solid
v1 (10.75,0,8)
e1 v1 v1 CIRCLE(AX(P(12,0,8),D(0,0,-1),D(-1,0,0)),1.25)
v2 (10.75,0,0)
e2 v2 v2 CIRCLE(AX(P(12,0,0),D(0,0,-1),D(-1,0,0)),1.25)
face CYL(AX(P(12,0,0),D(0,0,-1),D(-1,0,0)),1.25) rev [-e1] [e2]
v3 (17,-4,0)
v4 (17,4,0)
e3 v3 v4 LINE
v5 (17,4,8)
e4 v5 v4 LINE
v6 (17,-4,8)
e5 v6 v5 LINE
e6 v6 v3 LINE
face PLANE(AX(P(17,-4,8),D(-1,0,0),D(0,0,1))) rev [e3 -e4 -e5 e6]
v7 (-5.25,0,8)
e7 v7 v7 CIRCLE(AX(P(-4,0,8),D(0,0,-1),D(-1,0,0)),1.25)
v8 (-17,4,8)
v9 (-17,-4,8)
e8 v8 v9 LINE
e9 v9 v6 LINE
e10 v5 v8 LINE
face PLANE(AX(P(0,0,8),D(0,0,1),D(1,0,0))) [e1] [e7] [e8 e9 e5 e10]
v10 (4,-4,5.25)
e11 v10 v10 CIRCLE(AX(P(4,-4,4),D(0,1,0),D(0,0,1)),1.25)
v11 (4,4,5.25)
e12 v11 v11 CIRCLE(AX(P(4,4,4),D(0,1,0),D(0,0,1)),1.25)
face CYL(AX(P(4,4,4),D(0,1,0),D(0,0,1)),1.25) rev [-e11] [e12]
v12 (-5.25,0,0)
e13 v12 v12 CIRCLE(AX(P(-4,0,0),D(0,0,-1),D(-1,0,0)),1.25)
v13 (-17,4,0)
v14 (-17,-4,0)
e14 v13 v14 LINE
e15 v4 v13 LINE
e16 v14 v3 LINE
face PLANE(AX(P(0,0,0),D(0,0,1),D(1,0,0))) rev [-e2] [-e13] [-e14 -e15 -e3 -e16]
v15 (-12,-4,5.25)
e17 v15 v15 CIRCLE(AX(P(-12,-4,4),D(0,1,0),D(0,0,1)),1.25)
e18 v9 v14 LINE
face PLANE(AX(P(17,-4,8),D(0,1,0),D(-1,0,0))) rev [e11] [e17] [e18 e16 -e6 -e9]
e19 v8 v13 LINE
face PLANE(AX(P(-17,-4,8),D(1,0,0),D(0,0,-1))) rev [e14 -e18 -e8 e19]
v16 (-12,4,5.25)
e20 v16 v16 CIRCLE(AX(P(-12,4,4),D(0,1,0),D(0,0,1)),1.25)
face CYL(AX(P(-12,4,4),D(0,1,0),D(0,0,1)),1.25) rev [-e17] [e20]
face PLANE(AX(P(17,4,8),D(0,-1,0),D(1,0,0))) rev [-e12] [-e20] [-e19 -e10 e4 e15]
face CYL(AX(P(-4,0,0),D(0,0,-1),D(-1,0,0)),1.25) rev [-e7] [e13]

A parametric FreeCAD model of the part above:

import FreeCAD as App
import Part
import Sketcher

V = App.Vector

doc = App.newDocument("Part")
body = doc.addObject("PartDesign::Body", "Body")

sketch1 = body.newObject("Sketcher::SketchObject", "Sketch")
sketch1.AttachmentSupport = (doc.getObject("XY_Plane"), [""])
sketch1.MapMode = "FlatFace"
sketch1.addGeometry(Part.LineSegment(V(-17, 4, 0), V(-17, -4, 0)), False)
sketch1.addGeometry(Part.LineSegment(V(-17, -4, 0), V(17, -4, 0)), False)
sketch1.addGeometry(Part.LineSegment(V(17, -4, 0), V(17, 4, 0)), False)
sketch1.addGeometry(Part.LineSegment(V(17, 4, 0), V(-17, 4, 0)), False)
sketch1.addConstraint(Sketcher.Constraint("Coincident", 0, 2, 1, 1))
sketch1.addConstraint(Sketcher.Constraint("Coincident", 1, 2, 2, 1))
sketch1.addConstraint(Sketcher.Constraint("Coincident", 2, 2, 3, 1))
sketch1.addConstraint(Sketcher.Constraint("Coincident", 3, 2, 0, 1))
sketch1.addConstraint(Sketcher.Constraint("Vertical", 0))
sketch1.addConstraint(Sketcher.Constraint("Horizontal", 1))
sketch1.addConstraint(Sketcher.Constraint("Vertical", 2))
sketch1.addConstraint(Sketcher.Constraint("Horizontal", 3))
sketch1.addConstraint(Sketcher.Constraint("Symmetric", 0, 2, 2, 2, -1, 1))
sketch1.addConstraint(Sketcher.Constraint("DistanceX", 1, 1, 1, 2, 34.0))
sketch1.addConstraint(Sketcher.Constraint("DistanceY", 0, 2, 0, 1, 8.0))
pad1 = body.newObject("PartDesign::Pad", "Pad")
pad1.Profile = sketch1
pad1.Length = 8

sketch2 = body.newObject("Sketcher::SketchObject", "Sketch001")
sketch2.AttachmentSupport = (doc.getObject("XZ_Plane"), [""])
sketch2.MapMode = "FlatFace"
sketch2.AttachmentOffset = App.Placement(V(0, 0, -4), App.Rotation())
sketch2.addGeometry(Part.Circle(V(4, 4, 0), V(0, 0, 1), 1.2), False)
sketch2.addGeometry(Part.Circle(V(-12, 4, 0), V(0, 0, 1), 1.2), False)
sketch2.addConstraint(Sketcher.Constraint("Equal", 0, 1))
sketch2.addConstraint(Sketcher.Constraint("Horizontal", 0, 3, 1, 3))
sketch2.addConstraint(Sketcher.Constraint("Diameter", 0, 2.5))
sketch2.addConstraint(Sketcher.Constraint("DistanceX", -1, 1, 0, 3, 4.0))
sketch2.addConstraint(Sketcher.Constraint("DistanceY", -1, 1, 0, 3, 4.0))
sketch2.addConstraint(Sketcher.Constraint("DistanceX", 1, 3, -1, 1, 12.0))
doc.recompute()
hole = body.newObject("PartDesign::Hole", "Hole")
hole.Profile = sketch2
hole.ThreadType = "None"
hole.Diameter = 2.5
hole.DepthType = "ThroughAll"
hole.Reversed = True

sketch3 = body.newObject("Sketcher::SketchObject", "Sketch002")
sketch3.AttachmentSupport = (doc.getObject("XY_Plane"), [""])
sketch3.MapMode = "FlatFace"
sketch3.addGeometry(Part.Circle(V(-4, 0, 0), V(0, 0, 1), 1.2), False)
sketch3.addGeometry(Part.Circle(V(12, 0, 0), V(0, 0, 1), 1.2), False)
sketch3.addConstraint(Sketcher.Constraint("Equal", 0, 1))
sketch3.addConstraint(Sketcher.Constraint("PointOnObject", 0, 3, -1))
sketch3.addConstraint(Sketcher.Constraint("PointOnObject", 1, 3, -1))
sketch3.addConstraint(Sketcher.Constraint("Diameter", 0, 2.5))
sketch3.addConstraint(Sketcher.Constraint("DistanceX", 0, 3, -1, 1, 4.0))
sketch3.addConstraint(Sketcher.Constraint("DistanceX", -1, 1, 1, 3, 12.0))
doc.recompute()
hole2 = body.newObject("PartDesign::Hole", "Hole001")
hole2.Profile = sketch3
hole2.ThreadType = "None"
hole2.Diameter = 2.5
hole2.DepthType = "ThroughAll"
hole2.Reversed = True

doc.recompute()
